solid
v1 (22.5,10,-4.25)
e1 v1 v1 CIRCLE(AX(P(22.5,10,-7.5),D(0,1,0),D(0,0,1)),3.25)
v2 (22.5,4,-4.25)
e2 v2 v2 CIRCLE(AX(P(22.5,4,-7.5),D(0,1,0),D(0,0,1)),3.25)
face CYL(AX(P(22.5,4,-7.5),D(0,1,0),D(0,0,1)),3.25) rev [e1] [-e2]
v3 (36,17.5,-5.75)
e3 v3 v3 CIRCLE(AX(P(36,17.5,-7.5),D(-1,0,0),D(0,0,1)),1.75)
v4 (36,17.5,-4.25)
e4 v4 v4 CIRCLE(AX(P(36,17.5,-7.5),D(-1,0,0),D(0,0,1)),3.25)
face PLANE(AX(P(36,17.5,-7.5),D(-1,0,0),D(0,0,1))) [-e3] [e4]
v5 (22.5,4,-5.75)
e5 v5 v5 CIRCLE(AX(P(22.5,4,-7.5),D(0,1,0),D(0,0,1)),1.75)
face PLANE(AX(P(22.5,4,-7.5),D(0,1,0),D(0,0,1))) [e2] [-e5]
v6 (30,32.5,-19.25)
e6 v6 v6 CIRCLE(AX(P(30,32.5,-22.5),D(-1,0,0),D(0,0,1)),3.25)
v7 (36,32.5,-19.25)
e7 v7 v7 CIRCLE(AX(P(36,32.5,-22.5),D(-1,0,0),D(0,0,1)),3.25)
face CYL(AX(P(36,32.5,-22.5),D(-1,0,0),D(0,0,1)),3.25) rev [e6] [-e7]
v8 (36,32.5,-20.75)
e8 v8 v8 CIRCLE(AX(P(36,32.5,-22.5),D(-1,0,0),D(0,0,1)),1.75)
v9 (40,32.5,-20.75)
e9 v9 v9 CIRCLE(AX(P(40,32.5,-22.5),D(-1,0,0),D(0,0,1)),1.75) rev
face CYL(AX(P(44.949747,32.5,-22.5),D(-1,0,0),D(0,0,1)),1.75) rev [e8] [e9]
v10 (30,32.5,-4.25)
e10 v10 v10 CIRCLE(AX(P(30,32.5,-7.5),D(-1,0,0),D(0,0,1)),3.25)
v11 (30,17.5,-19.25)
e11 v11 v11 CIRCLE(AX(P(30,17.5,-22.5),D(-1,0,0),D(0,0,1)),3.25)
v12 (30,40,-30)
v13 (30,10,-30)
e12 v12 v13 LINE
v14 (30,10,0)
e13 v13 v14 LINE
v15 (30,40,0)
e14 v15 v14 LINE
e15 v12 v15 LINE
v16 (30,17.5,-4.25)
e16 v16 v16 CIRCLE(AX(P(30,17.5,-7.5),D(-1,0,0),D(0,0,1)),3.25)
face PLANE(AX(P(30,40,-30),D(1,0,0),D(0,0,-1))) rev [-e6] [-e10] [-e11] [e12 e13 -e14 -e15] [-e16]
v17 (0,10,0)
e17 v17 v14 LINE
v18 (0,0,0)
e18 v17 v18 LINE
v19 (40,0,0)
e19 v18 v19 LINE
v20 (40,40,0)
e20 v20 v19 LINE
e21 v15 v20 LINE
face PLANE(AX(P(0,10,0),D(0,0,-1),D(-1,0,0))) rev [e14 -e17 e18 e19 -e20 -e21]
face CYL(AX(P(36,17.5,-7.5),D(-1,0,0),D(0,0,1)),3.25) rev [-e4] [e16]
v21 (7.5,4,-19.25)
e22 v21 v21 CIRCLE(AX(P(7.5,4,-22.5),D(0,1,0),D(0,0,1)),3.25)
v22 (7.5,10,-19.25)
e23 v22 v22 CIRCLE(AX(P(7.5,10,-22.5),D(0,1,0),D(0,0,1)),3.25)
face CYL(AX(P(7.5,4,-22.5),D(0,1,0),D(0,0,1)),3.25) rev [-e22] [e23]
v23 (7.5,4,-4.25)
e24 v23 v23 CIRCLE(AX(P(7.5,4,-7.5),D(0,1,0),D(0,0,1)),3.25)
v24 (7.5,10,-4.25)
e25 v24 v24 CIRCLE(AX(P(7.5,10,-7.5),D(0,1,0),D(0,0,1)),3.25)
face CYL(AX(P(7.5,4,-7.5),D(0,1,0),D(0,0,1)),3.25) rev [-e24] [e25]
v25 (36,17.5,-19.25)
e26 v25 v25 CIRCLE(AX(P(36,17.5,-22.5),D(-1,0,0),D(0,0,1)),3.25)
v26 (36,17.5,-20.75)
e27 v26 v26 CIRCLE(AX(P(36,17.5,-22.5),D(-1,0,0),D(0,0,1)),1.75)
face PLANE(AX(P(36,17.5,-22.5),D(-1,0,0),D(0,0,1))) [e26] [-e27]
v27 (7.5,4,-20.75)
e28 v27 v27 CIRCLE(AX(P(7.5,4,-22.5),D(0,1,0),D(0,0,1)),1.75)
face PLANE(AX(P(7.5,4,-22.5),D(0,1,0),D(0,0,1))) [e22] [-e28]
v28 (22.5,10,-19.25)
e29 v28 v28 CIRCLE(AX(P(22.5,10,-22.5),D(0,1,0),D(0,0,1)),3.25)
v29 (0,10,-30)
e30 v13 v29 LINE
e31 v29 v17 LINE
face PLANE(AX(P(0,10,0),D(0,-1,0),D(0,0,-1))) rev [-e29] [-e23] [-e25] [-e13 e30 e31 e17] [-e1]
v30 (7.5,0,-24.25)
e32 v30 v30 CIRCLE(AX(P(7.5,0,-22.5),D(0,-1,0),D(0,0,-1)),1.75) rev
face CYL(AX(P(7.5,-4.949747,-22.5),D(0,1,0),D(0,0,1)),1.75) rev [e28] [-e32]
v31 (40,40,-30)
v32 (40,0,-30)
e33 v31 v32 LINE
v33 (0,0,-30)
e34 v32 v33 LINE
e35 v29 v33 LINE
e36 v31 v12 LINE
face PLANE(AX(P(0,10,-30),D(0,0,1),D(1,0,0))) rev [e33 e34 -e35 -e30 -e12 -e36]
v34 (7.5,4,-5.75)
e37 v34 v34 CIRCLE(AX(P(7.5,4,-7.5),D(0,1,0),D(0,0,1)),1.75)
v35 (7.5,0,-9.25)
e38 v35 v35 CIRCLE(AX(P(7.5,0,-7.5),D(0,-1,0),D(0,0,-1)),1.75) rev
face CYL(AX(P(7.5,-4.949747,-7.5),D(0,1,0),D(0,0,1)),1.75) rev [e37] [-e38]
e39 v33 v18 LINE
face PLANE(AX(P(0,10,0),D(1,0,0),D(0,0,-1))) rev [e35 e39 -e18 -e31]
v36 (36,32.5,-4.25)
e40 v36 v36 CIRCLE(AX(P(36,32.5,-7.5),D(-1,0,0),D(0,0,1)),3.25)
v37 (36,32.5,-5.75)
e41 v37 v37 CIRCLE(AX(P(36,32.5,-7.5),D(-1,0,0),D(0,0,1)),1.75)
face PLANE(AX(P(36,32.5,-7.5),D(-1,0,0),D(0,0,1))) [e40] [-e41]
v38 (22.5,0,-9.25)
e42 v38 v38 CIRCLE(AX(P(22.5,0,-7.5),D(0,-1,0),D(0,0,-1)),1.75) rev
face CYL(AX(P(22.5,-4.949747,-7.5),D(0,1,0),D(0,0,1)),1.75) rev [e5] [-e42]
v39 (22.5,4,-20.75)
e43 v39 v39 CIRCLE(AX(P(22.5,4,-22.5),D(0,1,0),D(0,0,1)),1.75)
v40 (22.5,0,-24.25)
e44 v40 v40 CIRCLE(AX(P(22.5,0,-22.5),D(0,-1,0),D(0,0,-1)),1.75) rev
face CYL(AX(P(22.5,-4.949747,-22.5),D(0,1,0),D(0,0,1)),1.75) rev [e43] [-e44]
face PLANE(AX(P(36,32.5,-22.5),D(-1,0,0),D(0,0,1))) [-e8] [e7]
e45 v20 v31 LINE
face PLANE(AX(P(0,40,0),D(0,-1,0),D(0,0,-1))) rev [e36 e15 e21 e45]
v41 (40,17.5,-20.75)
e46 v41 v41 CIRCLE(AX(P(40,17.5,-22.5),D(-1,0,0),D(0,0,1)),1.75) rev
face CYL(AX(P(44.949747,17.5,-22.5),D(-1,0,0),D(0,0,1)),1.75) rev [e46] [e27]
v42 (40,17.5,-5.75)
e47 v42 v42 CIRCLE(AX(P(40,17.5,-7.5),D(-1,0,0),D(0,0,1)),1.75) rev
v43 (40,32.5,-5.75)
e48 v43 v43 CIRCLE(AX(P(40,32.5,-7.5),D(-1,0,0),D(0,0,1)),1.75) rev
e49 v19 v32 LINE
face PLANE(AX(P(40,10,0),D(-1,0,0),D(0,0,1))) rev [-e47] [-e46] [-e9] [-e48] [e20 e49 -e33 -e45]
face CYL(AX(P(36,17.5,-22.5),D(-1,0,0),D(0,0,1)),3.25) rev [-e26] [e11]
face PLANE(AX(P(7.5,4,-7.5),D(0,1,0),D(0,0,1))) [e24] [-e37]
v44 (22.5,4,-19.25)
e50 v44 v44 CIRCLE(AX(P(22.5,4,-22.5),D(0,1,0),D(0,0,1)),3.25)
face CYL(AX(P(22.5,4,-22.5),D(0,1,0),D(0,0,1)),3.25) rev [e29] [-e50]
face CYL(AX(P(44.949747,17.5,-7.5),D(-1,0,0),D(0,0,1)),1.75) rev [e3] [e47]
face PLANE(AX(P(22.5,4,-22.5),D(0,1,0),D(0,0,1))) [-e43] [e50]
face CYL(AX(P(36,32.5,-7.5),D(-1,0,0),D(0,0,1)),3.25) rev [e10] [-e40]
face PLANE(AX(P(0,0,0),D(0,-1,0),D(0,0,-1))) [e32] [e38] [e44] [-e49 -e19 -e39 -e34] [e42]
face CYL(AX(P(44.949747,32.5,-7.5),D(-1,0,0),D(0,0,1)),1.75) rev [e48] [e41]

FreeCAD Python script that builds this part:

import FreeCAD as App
import Part
import Sketcher
from FreeCAD import Vector
Q = App.Units.Quantity

doc = App.newDocument("Part")
body = doc.addObject("PartDesign::Body", "Body")

sketch1 = body.newObject("Sketcher::SketchObject", "Sketch")
sketch1.AttachmentSupport = (doc.getObject("XZ_Plane"), [""])
sketch1.MapMode = "FlatFace"
sketch1.addGeometry([
    Part.LineSegment(Vector(0, -30, 0), Vector(0, 0, 0)),
    Part.LineSegment(Vector(0, 0, 0), Vector(40, 0, 0)),
    Part.LineSegment(Vector(40, 0, 0), Vector(40, -30, 0)),
    Part.LineSegment(Vector(40, -30, 0), Vector(0, -30, 0)),
], False)
sketch1.addConstraint([
    Sketcher.Constraint("Coincident", 0, 2, 1, 1),
    Sketcher.Constraint("Coincident", 1, 2, 2, 1),
    Sketcher.Constraint("Coincident", 2, 2, 3, 1),
    Sketcher.Constraint("Coincident", 3, 2, 0, 1),
    Sketcher.Constraint("Vertical", 0),
    Sketcher.Constraint("Horizontal", 1),
    Sketcher.Constraint("Vertical", 2),
    Sketcher.Constraint("Horizontal", 3),
    Sketcher.Constraint("Coincident", 0, 2, -1, 1),
    Sketcher.Constraint("DistanceX", 1, 1, 1, 2, Q("40 mm")),
    Sketcher.Constraint("DistanceY", 0, 1, 0, 2, Q("30 mm")),
])
pad1 = body.newObject("PartDesign::Pad", "Pad")
pad1.Profile = sketch1
pad1.Length = 10
pad1.Reversed = True

sketch2 = body.newObject("Sketcher::SketchObject", "Sketch001")
sketch2.AttachmentSupport = (doc.getObject("XZ_Plane"), [""])
sketch2.MapMode = "FlatFace"
sketch2.AttachmentOffset = App.Placement(Vector(0, 0, -10), App.Rotation())
sketch2.addGeometry([
    Part.LineSegment(Vector(30, -30, 0), Vector(30, 0, 0)),
    Part.LineSegment(Vector(30, 0, 0), Vector(40, 0, 0)),
    Part.LineSegment(Vector(40, 0, 0), Vector(40, -30, 0)),
    Part.LineSegment(Vector(40, -30, 0), Vector(30, -30, 0)),
], False)
sketch2.addConstraint([
    Sketcher.Constraint("Coincident", 0, 2, 1, 1),
    Sketcher.Constraint("Coincident", 1, 2, 2, 1),
    Sketcher.Constraint("Coincident", 2, 2, 3, 1),
    Sketcher.Constraint("Coincident", 3, 2, 0, 1),
    Sketcher.Constraint("Vertical", 0),
    Sketcher.Constraint("Horizontal", 1),
    Sketcher.Constraint("Vertical", 2),
    Sketcher.Constraint("Horizontal", 3),
    Sketcher.Constraint("PointOnObject", 0, 2, -1),
    Sketcher.Constraint("DistanceX", 1, 1, 1, 2, Q("10 mm")),
    Sketcher.Constraint("DistanceY", 0, 1, 0, 2, Q("30 mm")),
    Sketcher.Constraint("DistanceX", -1, 1, 0, 2, Q("30 mm")),
])
pad2 = body.newObject("PartDesign::Pad", "Pad001")
pad2.Profile = sketch2
pad2.Length = 30
pad2.Reversed = True

sketch3 = body.newObject("Sketcher::SketchObject", "Sketch002")
sketch3.AttachmentSupport = (doc.getObject("XZ_Plane"), [""])
sketch3.MapMode = "FlatFace"
sketch3.AttachmentOffset = App.Placement(Vector(0, 0, -10), App.Rotation())
sketch3.addGeometry([
    Part.Circle(Vector(7.5, -22.5, 0), Vector(0, 0, 1), 3.2),
    Part.Circle(Vector(22.5, -22.5, 0), Vector(0, 0, 1), 3.2),
    Part.Circle(Vector(22.5, -7.5, 0), Vector(0, 0, 1), 3.2),
    Part.Circle(Vector(7.5, -7.5, 0), Vector(0, 0, 1), 3.2),
], False)
sketch3.addConstraint([
    Sketcher.Constraint("Equal", 0, 1),
    Sketcher.Constraint("Equal", 1, 2),
    Sketcher.Constraint("Equal", 2, 3),
    Sketcher.Constraint("Horizontal", 0, 3, 1, 3),
    Sketcher.Constraint("Horizontal", 2, 3, 3, 3),
    Sketcher.Constraint("Vertical", 1, 3, 2, 3),
    Sketcher.Constraint("Vertical", 0, 3, 3, 3),
    Sketcher.Constraint("Diameter", 0, Q("6.5 mm")),
    Sketcher.Constraint("DistanceX", 0, 3, 1, 3, Q("15 mm")),
    Sketcher.Constraint("DistanceY", 1, 3, 2, 3, Q("15 mm")),
    Sketcher.Constraint("DistanceX", -1, 1, 0, 3, Q("7.5 mm")),
    Sketcher.Constraint("DistanceY", 0, 3, -1, 1, Q("22.5 mm")),
])
pocket1 = body.newObject("PartDesign::Pocket", "Pocket")
pocket1.Profile = sketch3
pocket1.Length = 6
pocket1.Reversed = True

sketch4 = body.newObject("Sketcher::SketchObject", "Sketch003")
sketch4.AttachmentSupport = (doc.getObject("XZ_Plane"), [""])
sketch4.MapMode = "FlatFace"
sketch4.AttachmentOffset = App.Placement(Vector(0, 0, -10), App.Rotation())
sketch4.addGeometry([
    Part.Circle(Vector(7.5, -22.5, 0), Vector(0, 0, 1), 1.8),
    Part.Circle(Vector(22.5, -22.5, 0), Vector(0, 0, 1), 1.8),
    Part.Circle(Vector(22.5, -7.5, 0), Vector(0, 0, 1), 1.8),
    Part.Circle(Vector(7.5, -7.5, 0), Vector(0, 0, 1), 1.8),
], False)
sketch4.addConstraint([
    Sketcher.Constraint("Equal", 0, 1),
    Sketcher.Constraint("Equal", 1, 2),
    Sketcher.Constraint("Equal", 2, 3),
    Sketcher.Constraint("Horizontal", 0, 3, 1, 3),
    Sketcher.Constraint("Horizontal", 2, 3, 3, 3),
    Sketcher.Constraint("Vertical", 1, 3, 2, 3),
    Sketcher.Constraint("Vertical", 0, 3, 3, 3),
    Sketcher.Constraint("Diameter", 0, Q("3.5 mm")),
    Sketcher.Constraint("DistanceX", 0, 3, 1, 3, Q("15 mm")),
    Sketcher.Constraint("DistanceY", 1, 3, 2, 3, Q("15 mm")),
    Sketcher.Constraint("DistanceX", -1, 1, 0, 3, Q("7.5 mm")),
    Sketcher.Constraint("DistanceY", 0, 3, -1, 1, Q("22.5 mm")),
])
pocket2 = body.newObject("PartDesign::Pocket", "Pocket001")
pocket2.Profile = sketch4
pocket2.Length = 10
pocket2.Reversed = True

sketch5 = body.newObject("Sketcher::SketchObject", "Sketch004")
sketch5.AttachmentSupport = (doc.getObject("YZ_Plane"), [""])
sketch5.MapMode = "FlatFace"
sketch5.AttachmentOffset = App.Placement(Vector(0, 0, 30), App.Rotation())
sketch5.addGeometry([
    Part.Circle(Vector(32.5, -7.5, 0), Vector(0, 0, 1), 3.2),
    Part.Circle(Vector(32.5, -22.5, 0), Vector(0, 0, 1), 3.2),
    Part.Circle(Vector(17.5, -22.5, 0), Vector(0, 0, 1), 3.2),
    Part.Circle(Vector(17.5, -7.5, 0), Vector(0, 0, 1), 3.2),
], False)
sketch5.addConstraint([
    Sketcher.Constraint("Equal", 0, 1),
    Sketcher.Constraint("Equal", 1, 2),
    Sketcher.Constraint("Equal", 2, 3),
    Sketcher.Constraint("Horizontal", 1, 3, 2, 3),
    Sketcher.Constraint("Horizontal", 0, 3, 3, 3),
    Sketcher.Constraint("Vertical", 0, 3, 1, 3),
    Sketcher.Constraint("Vertical", 2, 3, 3, 3),
    Sketcher.Constraint("Diameter", 0, Q("6.5 mm")),
    Sketcher.Constraint("DistanceY", 1, 3, 0, 3, Q("15 mm")),
    Sketcher.Constraint("DistanceX", 2, 3, 1, 3, Q("15 mm")),
    Sketcher.Constraint("DistanceX", -1, 1, 0, 3, Q("32.5 mm")),
    Sketcher.Constraint("DistanceY", 0, 3, -1, 1, Q("7.5 mm")),
])
pocket3 = body.newObject("PartDesign::Pocket", "Pocket002")
pocket3.Profile = sketch5
pocket3.Length = 6
pocket3.Reversed = True

sketch6 = body.newObject("Sketcher::SketchObject", "Sketch005")
sketch6.AttachmentSupport = (doc.getObject("YZ_Plane"), [""])
sketch6.MapMode = "FlatFace"
sketch6.AttachmentOffset = App.Placement(Vector(0, 0, 30), App.Rotation())
sketch6.addGeometry([
    Part.Circle(Vector(32.5, -22.5, 0), Vector(0, 0, 1), 1.8),
    Part.Circle(Vector(32.5, -7.5, 0), Vector(0, 0, 1), 1.8),
    Part.Circle(Vector(17.5, -7.5, 0), Vector(0, 0, 1), 1.8),
    Part.Circle(Vector(17.5, -22.5, 0), Vector(0, 0, 1), 1.8),
], False)
sketch6.addConstraint([
    Sketcher.Constraint("Equal", 0, 1),
    Sketcher.Constraint("Equal", 1, 2),
    Sketcher.Constraint("Equal", 2, 3),
    Sketcher.Constraint("Horizontal", 1, 3, 2, 3),
    Sketcher.Constraint("Horizontal", 0, 3, 3, 3),
    Sketcher.Constraint("Vertical", 0, 3, 1, 3),
    Sketcher.Constraint("Vertical", 2, 3, 3, 3),
    Sketcher.Constraint("Diameter", 0, Q("3.5 mm")),
    Sketcher.Constraint("DistanceY", 0, 3, 1, 3, Q("15 mm")),
    Sketcher.Constraint("DistanceX", 2, 3, 1, 3, Q("15 mm")),
    Sketcher.Constraint("DistanceX", -1, 1, 0, 3, Q("32.5 mm")),
    Sketcher.Constraint("DistanceY", 0, 3, -1, 1, Q("22.5 mm")),
])
pocket4 = body.newObject("PartDesign::Pocket", "Pocket003")
pocket4.Profile = sketch6
pocket4.Length = 10
pocket4.Reversed = True

doc.recompute()
